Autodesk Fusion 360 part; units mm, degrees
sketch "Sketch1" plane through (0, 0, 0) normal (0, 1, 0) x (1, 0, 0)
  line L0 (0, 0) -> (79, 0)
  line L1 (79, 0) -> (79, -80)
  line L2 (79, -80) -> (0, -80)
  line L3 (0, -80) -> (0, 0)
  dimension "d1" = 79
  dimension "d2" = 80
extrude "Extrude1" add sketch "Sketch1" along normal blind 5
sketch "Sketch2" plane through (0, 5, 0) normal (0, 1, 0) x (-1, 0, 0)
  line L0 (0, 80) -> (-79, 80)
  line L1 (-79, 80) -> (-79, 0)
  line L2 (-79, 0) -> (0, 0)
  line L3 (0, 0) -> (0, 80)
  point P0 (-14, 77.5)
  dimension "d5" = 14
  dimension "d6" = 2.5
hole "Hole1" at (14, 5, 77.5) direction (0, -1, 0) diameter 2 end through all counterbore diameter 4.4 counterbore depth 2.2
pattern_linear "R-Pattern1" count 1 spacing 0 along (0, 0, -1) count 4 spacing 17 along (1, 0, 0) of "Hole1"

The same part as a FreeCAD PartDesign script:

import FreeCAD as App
import Part
import Sketcher
from FreeCAD import Vector


def add_polygon(sketch, points):
    """Adds a closed chain of lines whose ends are joined by coincident constraints."""
    first, n = sketch.GeometryCount, len(points)
    for a, b in zip(points, points[1:] + points[:1]):
        sketch.addGeometry(Part.LineSegment(App.Vector(*a, 0), App.Vector(*b, 0)), False)
    for i in range(n):
        sketch.addConstraint(Sketcher.Constraint("Coincident", first + i, 2, first + (i + 1) % n, 1))

doc = App.newDocument("Part")
body = doc.addObject("PartDesign::Body", "Body")

# Sketch on XZ plane
sketch1 = body.newObject("Sketcher::SketchObject", "Sketch")
sketch1.AttachmentSupport = (doc.getObject("XZ_Plane"), [""])
sketch1.MapMode = "FlatFace"
add_polygon(sketch1, [(79, 0), (0, 0), (0, 80), (79, 80)])  # lines 0-3
sketch1.addConstraint(Sketcher.Constraint("Horizontal", 0))
sketch1.addConstraint(Sketcher.Constraint("Vertical", 1))
sketch1.addConstraint(Sketcher.Constraint("Horizontal", 2))
sketch1.addConstraint(Sketcher.Constraint("Vertical", 3))
sketch1.addConstraint(Sketcher.Constraint("Coincident", 0, 2, -1, 1))
sketch1.addConstraint(Sketcher.Constraint("DistanceX", 0, 2, 0, 1, 79.0))
sketch1.addConstraint(Sketcher.Constraint("DistanceY", 1, 1, 1, 2, 80.0))
pad1 = body.newObject("PartDesign::Pad", "Pad")
pad1.Profile = sketch1
pad1.Length = 5
pad1.Reversed = True

# Sketch on XZ plane
sketch2 = body.newObject("Sketcher::SketchObject", "Sketch001")
sketch2.AttachmentSupport = (doc.getObject("XZ_Plane"), [""])
sketch2.MapMode = "FlatFace"
sketch2.AttachmentOffset = App.Placement(Vector(0, 0, -5), App.Rotation())
sketch2.addGeometry(Part.Circle(Vector(14, 77.5, 0), Vector(0, 0, 1), 1), False)
sketch2.addConstraint(Sketcher.Constraint("Diameter", 0, 2.0))
sketch2.addConstraint(Sketcher.Constraint("DistanceX", -1, 1, 0, 3, 14.0))
sketch2.addConstraint(Sketcher.Constraint("DistanceY", -1, 1, 0, 3, 77.5))
doc.recompute()
hole = body.newObject("PartDesign::Hole", "Hole")
hole.Profile = sketch2
hole.ThreadType = "None"
hole.Diameter = 2
hole.DepthType = "ThroughAll"
hole.HoleCutType = "Counterbore"
hole.HoleCutDiameter = 4.4
hole.HoleCutDepth = 2.2
hole.Reversed = True
doc.recompute()

linearpattern = body.newObject("PartDesign::LinearPattern", "LinearPattern")
linearpattern.Originals = [hole]
linearpattern.Direction = (doc.getObject("X_Axis"), [""])
linearpattern.Mode = "offset"
linearpattern.Offset = 17
linearpattern.Occurrences = 4
body.Tip = linearpattern

doc.recompute()
